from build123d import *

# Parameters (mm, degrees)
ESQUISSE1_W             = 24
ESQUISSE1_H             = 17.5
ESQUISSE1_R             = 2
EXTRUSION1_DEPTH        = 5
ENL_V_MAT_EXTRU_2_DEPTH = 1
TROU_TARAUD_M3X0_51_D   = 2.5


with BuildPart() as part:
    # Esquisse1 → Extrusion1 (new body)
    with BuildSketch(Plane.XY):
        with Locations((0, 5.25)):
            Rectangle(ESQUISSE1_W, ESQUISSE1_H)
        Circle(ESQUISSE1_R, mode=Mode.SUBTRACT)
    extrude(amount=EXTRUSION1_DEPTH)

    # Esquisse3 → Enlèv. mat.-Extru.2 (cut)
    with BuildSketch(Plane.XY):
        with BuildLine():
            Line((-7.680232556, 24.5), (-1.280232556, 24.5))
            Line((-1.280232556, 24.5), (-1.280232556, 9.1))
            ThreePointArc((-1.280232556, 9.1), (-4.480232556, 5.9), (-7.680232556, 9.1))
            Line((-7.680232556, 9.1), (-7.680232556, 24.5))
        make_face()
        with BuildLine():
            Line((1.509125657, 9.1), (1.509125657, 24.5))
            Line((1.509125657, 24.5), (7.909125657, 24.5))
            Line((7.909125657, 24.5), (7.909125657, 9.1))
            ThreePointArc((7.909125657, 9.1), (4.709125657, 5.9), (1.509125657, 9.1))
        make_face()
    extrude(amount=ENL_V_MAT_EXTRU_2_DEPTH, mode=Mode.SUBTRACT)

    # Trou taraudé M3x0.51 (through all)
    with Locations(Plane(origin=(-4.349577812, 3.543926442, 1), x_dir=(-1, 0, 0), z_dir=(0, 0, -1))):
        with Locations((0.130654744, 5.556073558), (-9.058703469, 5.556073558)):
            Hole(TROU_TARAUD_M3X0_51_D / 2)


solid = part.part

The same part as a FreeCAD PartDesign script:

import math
import FreeCAD as App
import Part
import Sketcher

V = App.Vector
Q = App.Units.Quantity

doc = App.newDocument("Part")
body = doc.addObject("PartDesign::Body", "Body")

sketch1 = doc.addObject("Sketcher::SketchObject", "Sketch")
body.addObject(sketch1)
sketch1.AttachmentSupport = (doc.XY_Plane, [""])
sketch1.MapMode = "FlatFace"
sketch1.addGeometry([
    Part.LineSegment(V(-12, 14, 0), V(-12, -3.5, 0)),
    Part.LineSegment(V(-12, -3.5, 0), V(12, -3.5, 0)),
    Part.LineSegment(V(12, -3.5, 0), V(12, 14, 0)),
    Part.LineSegment(V(12, 14, 0), V(-12, 14, 0)),
    Part.Circle(V(0, 0, 0), V(0, 0, 1), 2),
], False)
sketch1.addConstraint([
    Sketcher.Constraint("Coincident", 0, 2, 1, 1),
    Sketcher.Constraint("Coincident", 1, 2, 2, 1),
    Sketcher.Constraint("Coincident", 2, 2, 3, 1),
    Sketcher.Constraint("Coincident", 3, 2, 0, 1),
    Sketcher.Constraint("Vertical", 0),
    Sketcher.Constraint("Horizontal", 1),
    Sketcher.Constraint("Vertical", 2),
    Sketcher.Constraint("Horizontal", 3),
    Sketcher.Constraint("Coincident", 4, 3, -1, 1),
    Sketcher.Constraint("Diameter", 4, Q("4 mm")),
    Sketcher.Constraint("DistanceX", 1, 1, 1, 2, Q("24 mm")),
    Sketcher.Constraint("DistanceY", 0, 2, 0, 1, Q("17.5 mm")),
    Sketcher.Constraint("DistanceX", 0, 2, -1, 1, Q("12 mm")),
    Sketcher.Constraint("DistanceY", -1, 1, 2, 2, Q("14 mm")),
])
pad1 = doc.addObject("PartDesign::Pad", "Pad")
body.addObject(pad1)
pad1.Profile = sketch1
pad1.Length = 5

sketch2 = doc.addObject("Sketcher::SketchObject", "Sketch001")
body.addObject(sketch2)
sketch2.AttachmentSupport = (doc.XY_Plane, [""])
sketch2.MapMode = "FlatFace"
sketch2.addGeometry([
    Part.LineSegment(V(-1.3, 24.5, 0), V(-7.7, 24.5, 0)),
    Part.LineSegment(V(-7.7, 24.5, 0), V(-7.7, 9.1, 0)),
    Part.ArcOfCircle(Part.Circle(V(-4.5, 9.1, 0), V(0, 0, 1), 3.2), math.radians(180), math.radians(360)),
    Part.LineSegment(V(-1.3, 9.1, 0), V(-1.3, 24.5, 0)),
    Part.LineSegment(V(1.5, 24.5, 0), V(1.5, 9.1, 0)),
    Part.ArcOfCircle(Part.Circle(V(4.7, 9.1, 0), V(0, 0, 1), 3.2), math.radians(180), math.radians(360)),
    Part.LineSegment(V(7.9, 9.1, 0), V(7.9, 24.5, 0)),
    Part.LineSegment(V(7.9, 24.5, 0), V(1.5, 24.5, 0)),
], False)
sketch2.addConstraint([
    Sketcher.Constraint("Coincident", 0, 2, 1, 1),
    Sketcher.Constraint("Tangent", 1, 2, 2, 1),
    Sketcher.Constraint("Tangent", 2, 2, 3, 1),
    Sketcher.Constraint("Coincident", 3, 2, 0, 1),
    Sketcher.Constraint("Tangent", 4, 2, 5, 1),
    Sketcher.Constraint("Tangent", 5, 2, 6, 1),
    Sketcher.Constraint("Coincident", 6, 2, 7, 1),
    Sketcher.Constraint("Coincident", 7, 2, 4, 1),
    Sketcher.Constraint("Horizontal", 0),
    Sketcher.Constraint("Vertical", 1),
    Sketcher.Constraint("Vertical", 3),
    Sketcher.Constraint("Vertical", 4),
    Sketcher.Constraint("Vertical", 6),
    Sketcher.Constraint("Horizontal", 7),
    Sketcher.Constraint("Equal", 2, 5),
    Sketcher.Constraint("Horizontal", 2, 3, 5, 3),
    Sketcher.Constraint("Horizontal", 3, 2, 6, 2),
    Sketcher.Constraint("Radius", 2, Q("3.2 mm")),
    Sketcher.Constraint("DistanceY", 1, 2, 1, 1, Q("15.4 mm")),
    Sketcher.Constraint("DistanceY", -1, 1, 2, 3, Q("9.1 mm")),
    Sketcher.Constraint("DistanceX", 2, 3, 5, 3, Q("9.189358 mm")),
    Sketcher.Constraint("DistanceX", 2, 3, -1, 1, Q("4.480233 mm")),
])
pocket1 = doc.addObject("PartDesign::Pocket", "Pocket")
body.addObject(pocket1)
pocket1.Profile = sketch2
pocket1.Length = 1
pocket1.Reversed = True

sketch3 = doc.addObject("Sketcher::SketchObject", "Sketch002")
body.addObject(sketch3)
sketch3.AttachmentSupport = (doc.XY_Plane, [""])
sketch3.MapMode = "FlatFace"
sketch3.AttachmentOffset = App.Placement(V(0, 0, 1), App.Rotation())
sketch3.addGeometry([
    Part.Circle(V(-4.5, 9.1, 0), V(0, 0, 1), 1.2),
    Part.Circle(V(4.7, 9.1, 0), V(0, 0, 1), 1.2),
], False)
sketch3.addConstraint([
    Sketcher.Constraint("Equal", 0, 1),
    Sketcher.Constraint("Horizontal", 0, 3, 1, 3),
    Sketcher.Constraint("Diameter", 0, Q("2.5 mm")),
    Sketcher.Constraint("DistanceY", -1, 1, 0, 3, Q("9.1 mm")),
    Sketcher.Constraint("DistanceX", 0, 3, 1, 3, Q("9.189358 mm")),
    Sketcher.Constraint("DistanceX", 0, 3, -1, 1, Q("4.480233 mm")),
])
doc.recompute()
hole = doc.addObject("PartDesign::Hole", "Hole")
body.addObject(hole)
hole.Profile = sketch3
hole.ThreadType = "None"
hole.Diameter = 2.5
hole.DepthType = "ThroughAll"
hole.Reversed = True

doc.recompute()
